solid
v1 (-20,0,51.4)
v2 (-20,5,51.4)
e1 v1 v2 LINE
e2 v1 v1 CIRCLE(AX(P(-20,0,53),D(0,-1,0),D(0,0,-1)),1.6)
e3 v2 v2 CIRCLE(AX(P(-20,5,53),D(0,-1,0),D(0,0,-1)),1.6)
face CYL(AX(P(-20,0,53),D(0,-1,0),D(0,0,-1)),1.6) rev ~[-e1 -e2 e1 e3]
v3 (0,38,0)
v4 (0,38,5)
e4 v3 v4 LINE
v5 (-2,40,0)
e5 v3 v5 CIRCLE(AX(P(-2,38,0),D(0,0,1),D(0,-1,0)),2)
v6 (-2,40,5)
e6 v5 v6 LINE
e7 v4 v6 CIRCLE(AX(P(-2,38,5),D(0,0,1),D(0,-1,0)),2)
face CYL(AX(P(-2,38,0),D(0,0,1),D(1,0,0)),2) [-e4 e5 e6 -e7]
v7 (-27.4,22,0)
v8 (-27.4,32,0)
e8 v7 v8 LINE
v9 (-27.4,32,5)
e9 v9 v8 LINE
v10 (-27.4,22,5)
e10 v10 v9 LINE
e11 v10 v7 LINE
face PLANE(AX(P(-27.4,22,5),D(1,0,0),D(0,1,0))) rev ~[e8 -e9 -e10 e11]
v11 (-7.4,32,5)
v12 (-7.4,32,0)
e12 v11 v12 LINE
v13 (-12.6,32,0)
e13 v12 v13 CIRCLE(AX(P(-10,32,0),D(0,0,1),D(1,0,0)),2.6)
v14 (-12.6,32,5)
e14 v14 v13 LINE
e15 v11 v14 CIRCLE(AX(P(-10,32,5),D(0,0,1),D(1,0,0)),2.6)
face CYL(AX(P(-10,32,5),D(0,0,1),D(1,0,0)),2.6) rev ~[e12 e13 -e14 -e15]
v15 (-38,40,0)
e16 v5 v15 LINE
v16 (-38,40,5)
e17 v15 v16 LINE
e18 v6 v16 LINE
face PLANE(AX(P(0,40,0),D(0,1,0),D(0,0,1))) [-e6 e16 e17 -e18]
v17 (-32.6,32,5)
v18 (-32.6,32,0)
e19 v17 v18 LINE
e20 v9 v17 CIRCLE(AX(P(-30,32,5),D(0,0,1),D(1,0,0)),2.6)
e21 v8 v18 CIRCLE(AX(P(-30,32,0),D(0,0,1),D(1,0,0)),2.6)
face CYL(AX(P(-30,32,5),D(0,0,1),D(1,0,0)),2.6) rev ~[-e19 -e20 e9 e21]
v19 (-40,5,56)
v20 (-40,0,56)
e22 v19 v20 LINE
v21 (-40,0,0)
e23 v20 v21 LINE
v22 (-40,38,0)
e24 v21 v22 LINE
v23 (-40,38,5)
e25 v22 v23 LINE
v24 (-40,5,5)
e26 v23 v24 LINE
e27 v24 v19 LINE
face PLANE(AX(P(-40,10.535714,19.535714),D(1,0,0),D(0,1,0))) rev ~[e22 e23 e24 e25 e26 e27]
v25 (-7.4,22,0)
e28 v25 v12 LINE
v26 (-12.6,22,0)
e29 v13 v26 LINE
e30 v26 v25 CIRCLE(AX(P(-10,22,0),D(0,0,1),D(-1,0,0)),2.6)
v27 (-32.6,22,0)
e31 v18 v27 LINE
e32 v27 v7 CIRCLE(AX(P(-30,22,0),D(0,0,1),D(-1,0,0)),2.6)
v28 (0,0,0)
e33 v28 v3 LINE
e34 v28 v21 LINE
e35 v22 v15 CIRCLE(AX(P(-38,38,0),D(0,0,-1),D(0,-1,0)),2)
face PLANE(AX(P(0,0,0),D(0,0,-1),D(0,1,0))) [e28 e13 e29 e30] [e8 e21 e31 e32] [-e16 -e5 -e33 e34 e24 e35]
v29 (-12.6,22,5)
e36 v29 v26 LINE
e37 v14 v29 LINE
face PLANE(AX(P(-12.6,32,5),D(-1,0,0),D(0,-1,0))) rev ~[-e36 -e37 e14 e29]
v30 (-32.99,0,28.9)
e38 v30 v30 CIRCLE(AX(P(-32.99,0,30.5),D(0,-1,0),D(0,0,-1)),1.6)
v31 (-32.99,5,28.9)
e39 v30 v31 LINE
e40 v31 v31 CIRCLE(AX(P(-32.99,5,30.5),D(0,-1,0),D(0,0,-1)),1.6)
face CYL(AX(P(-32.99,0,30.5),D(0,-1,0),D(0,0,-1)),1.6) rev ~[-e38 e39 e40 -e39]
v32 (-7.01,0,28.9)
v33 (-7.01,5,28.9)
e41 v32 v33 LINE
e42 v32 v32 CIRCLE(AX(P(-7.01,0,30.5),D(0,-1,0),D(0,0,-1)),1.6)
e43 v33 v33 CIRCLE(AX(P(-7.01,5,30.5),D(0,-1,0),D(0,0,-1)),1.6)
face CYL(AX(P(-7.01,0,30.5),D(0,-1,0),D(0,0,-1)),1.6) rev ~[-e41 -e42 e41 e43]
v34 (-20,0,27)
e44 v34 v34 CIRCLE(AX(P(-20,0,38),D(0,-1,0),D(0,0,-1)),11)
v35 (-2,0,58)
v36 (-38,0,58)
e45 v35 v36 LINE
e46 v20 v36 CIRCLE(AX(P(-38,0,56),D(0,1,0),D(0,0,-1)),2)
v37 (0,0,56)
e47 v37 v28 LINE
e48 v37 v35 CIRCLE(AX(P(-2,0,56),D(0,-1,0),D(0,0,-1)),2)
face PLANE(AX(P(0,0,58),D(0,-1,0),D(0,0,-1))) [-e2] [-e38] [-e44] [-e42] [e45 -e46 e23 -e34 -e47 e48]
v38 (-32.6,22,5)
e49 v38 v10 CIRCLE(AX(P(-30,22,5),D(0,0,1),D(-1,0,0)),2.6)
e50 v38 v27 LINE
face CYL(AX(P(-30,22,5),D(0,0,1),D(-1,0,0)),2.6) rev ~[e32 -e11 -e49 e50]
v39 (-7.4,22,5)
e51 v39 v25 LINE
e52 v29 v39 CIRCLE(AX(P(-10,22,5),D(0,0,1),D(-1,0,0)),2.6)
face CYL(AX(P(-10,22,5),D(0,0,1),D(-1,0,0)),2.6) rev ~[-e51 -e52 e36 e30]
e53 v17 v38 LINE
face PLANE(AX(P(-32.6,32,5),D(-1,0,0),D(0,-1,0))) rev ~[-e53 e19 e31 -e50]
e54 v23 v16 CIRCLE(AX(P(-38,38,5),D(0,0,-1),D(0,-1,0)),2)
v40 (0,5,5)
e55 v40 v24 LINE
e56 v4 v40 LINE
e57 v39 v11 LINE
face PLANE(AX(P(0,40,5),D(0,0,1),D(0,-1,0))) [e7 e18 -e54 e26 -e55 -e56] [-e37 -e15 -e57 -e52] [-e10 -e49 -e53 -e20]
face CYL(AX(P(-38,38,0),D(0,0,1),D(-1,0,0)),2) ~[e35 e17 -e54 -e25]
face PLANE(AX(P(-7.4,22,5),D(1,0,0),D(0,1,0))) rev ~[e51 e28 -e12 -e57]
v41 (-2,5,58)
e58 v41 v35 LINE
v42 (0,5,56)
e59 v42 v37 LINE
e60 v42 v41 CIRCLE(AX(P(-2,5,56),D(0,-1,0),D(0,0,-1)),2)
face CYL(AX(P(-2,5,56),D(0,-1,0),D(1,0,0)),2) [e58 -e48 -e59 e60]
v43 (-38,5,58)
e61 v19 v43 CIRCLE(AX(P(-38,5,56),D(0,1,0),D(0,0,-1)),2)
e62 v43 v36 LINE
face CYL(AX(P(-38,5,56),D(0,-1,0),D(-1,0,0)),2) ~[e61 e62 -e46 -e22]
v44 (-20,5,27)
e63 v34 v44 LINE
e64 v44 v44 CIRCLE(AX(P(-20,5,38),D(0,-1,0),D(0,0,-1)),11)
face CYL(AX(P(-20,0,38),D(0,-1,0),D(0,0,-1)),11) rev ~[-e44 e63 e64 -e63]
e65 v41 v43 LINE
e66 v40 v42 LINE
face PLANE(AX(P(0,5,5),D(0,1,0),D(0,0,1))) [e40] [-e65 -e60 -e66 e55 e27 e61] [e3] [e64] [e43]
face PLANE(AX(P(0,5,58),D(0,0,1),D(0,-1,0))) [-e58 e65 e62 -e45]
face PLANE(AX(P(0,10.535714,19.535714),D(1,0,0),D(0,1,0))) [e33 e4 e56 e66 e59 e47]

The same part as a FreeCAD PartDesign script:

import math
import FreeCAD as App
import Part
import Sketcher
from FreeCAD import Vector


def edges_at(feature, points):
    """Names of the edges that pass closest to the given points."""
    edges = feature.Shape.Edges
    near = lambda p: min(range(len(edges)), key=lambda i: edges[i].distToShape(Part.Vertex(*p))[0])
    return sorted({f"Edge{near(p) + 1}" for p in points})

doc = App.newDocument("Part")
params = doc.addObject("Spreadsheet::Sheet", "Params")
for row, (alias, value) in enumerate([
    ("sketch1_width", "5 mm"),
    ("sketch1_width2", "40 mm"),
    ("sketch1_height", "53 mm"),
    ("pad1_length", "40 mm"),
    ("sketch2_diameter", "22 mm"),
    ("pocket1_length", "5 mm"),
    ("sketch3_diameter", "3.2 mm"),
    ("fillet_radius", "2 mm"),
    ("sketch4_radius", "2.6 mm"),
    ("sketch4_height", "10 mm"),
    ("pocket3_length", "5 mm"),
    ("fillet2_radius", "2 mm"),
], start=1):
    params.set(f"A{row}", alias)
    params.set(f"B{row}", "=" + value)
    params.setAlias(f"B{row}", alias)

body = doc.addObject("PartDesign::Body", "Body")

# Sketch on YZ plane
sketch1 = body.newObject("Sketcher::SketchObject", "Sketch")
sketch1.AttachmentSupport = (doc.getObject("YZ_Plane"), [""])
sketch1.MapMode = "FlatFace"
sketch1.addGeometry(Part.LineSegment(Vector(5, 5, 0), Vector(5, 58, 0)), False)
sketch1.addGeometry(Part.LineSegment(Vector(5, 58, 0), Vector(0, 58, 0)), False)
sketch1.addGeometry(Part.LineSegment(Vector(0, 58, 0), Vector(0, 0, 0)), False)
sketch1.addGeometry(Part.LineSegment(Vector(0, 0, 0), Vector(40, 0, 0)), False)
sketch1.addGeometry(Part.LineSegment(Vector(40, 0, 0), Vector(40, 5, 0)), False)
sketch1.addGeometry(Part.LineSegment(Vector(40, 5, 0), Vector(5, 5, 0)), False)
sketch1.addConstraint(Sketcher.Constraint("Coincident", 0, 2, 1, 1))
sketch1.addConstraint(Sketcher.Constraint("Coincident", 1, 2, 2, 1))
sketch1.addConstraint(Sketcher.Constraint("Coincident", 2, 2, 3, 1))
sketch1.addConstraint(Sketcher.Constraint("Coincident", 3, 2, 4, 1))
sketch1.addConstraint(Sketcher.Constraint("Coincident", 4, 2, 5, 1))
sketch1.addConstraint(Sketcher.Constraint("Coincident", 5, 2, 0, 1))
sketch1.addConstraint(Sketcher.Constraint("Vertical", 0))
sketch1.addConstraint(Sketcher.Constraint("Horizontal", 1))
sketch1.addConstraint(Sketcher.Constraint("Vertical", 2))
sketch1.addConstraint(Sketcher.Constraint("Horizontal", 3))
sketch1.addConstraint(Sketcher.Constraint("Vertical", 4))
sketch1.addConstraint(Sketcher.Constraint("Horizontal", 5))
sketch1.addConstraint(Sketcher.Constraint("Coincident", 2, 2, -1, 1))
sketch1.addConstraint(Sketcher.Constraint("Equal", 1, 4))
sketch1.addConstraint(Sketcher.Constraint("DistanceX", 1, 2, 1, 1, 5.0))
sketch1.addConstraint(Sketcher.Constraint("DistanceX", 3, 1, 3, 2, 40.0))
sketch1.addConstraint(Sketcher.Constraint("DistanceY", 0, 1, 0, 2, 53.0))
sketch1.setExpression("Constraints[14]", "Params.sketch1_width")
sketch1.setExpression("Constraints[15]", "Params.sketch1_width2")
sketch1.setExpression("Constraints[16]", "Params.sketch1_height")
pad1 = body.newObject("PartDesign::Pad", "Pad")
pad1.Profile = sketch1
pad1.setExpression("Length", "Params.pad1_length")
pad1.Reversed = True

# Sketch on XZ plane
sketch2 = body.newObject("Sketcher::SketchObject", "Sketch001")
sketch2.AttachmentSupport = (doc.getObject("XZ_Plane"), [""])
sketch2.MapMode = "FlatFace"
sketch2.addGeometry(Part.Circle(Vector(-20, 38, 0), Vector(0, 0, 1), 11), False)
sketch2.addConstraint(Sketcher.Constraint("Diameter", 0, 22.0))
sketch2.addConstraint(Sketcher.Constraint("DistanceX", 0, 3, -1, 1, 20.0))
sketch2.addConstraint(Sketcher.Constraint("DistanceY", -1, 1, 0, 3, 38.0))
sketch2.setExpression("Constraints[0]", "Params.sketch2_diameter")
pocket1 = body.newObject("PartDesign::Pocket", "Pocket")
pocket1.Profile = sketch2
pocket1.setExpression("Length", "Params.pocket1_length")

# Sketch on XZ plane
sketch3 = body.newObject("Sketcher::SketchObject", "Sketch002")
sketch3.AttachmentSupport = (doc.getObject("XZ_Plane"), [""])
sketch3.MapMode = "FlatFace"
sketch3.addGeometry(Part.Circle(Vector(-20, 53, 0), Vector(0, 0, 1), 1.6), False)
sketch3.addGeometry(Part.Circle(Vector(-32.99, 30.5, 0), Vector(0, 0, 1), 1.6), False)
sketch3.addGeometry(Part.Circle(Vector(-7.01, 30.5, 0), Vector(0, 0, 1), 1.6), False)
sketch3.addConstraint(Sketcher.Constraint("Equal", 0, 1))
sketch3.addConstraint(Sketcher.Constraint("Equal", 1, 2))
sketch3.addConstraint(Sketcher.Constraint("Horizontal", 1, 3, 2, 3))
sketch3.addConstraint(Sketcher.Constraint("Diameter", 0, 3.2))
sketch3.addConstraint(Sketcher.Constraint("DistanceX", 0, 3, -1, 1, 20.0))
sketch3.addConstraint(Sketcher.Constraint("DistanceY", -1, 1, 0, 3, 53.0))
sketch3.addConstraint(Sketcher.Constraint("DistanceY", -1, 1, 1, 3, 30.5))
sketch3.addConstraint(Sketcher.Constraint("DistanceX", 1, 3, -1, 1, 32.99))
sketch3.addConstraint(Sketcher.Constraint("DistanceX", 2, 3, -1, 1, 7.01))
sketch3.setExpression("Constraints[3]", "Params.sketch3_diameter")
pocket2 = body.newObject("PartDesign::Pocket", "Pocket001")
pocket2.Profile = sketch3
pocket2.Type = "ThroughAll"
doc.recompute()

fillet = body.newObject("PartDesign::Fillet", "Fillet")
fillet.Base = (pocket2, edges_at(pocket2, [(0, 2.5, 58), (-40, 2.5, 58)]))
fillet.setExpression("Radius", "Params.fillet_radius")

# Sketch on XY plane
sketch4 = body.newObject("Sketcher::SketchObject", "Sketch003")
sketch4.AttachmentSupport = (doc.getObject("XY_Plane"), [""])
sketch4.MapMode = "FlatFace"
sketch4.AttachmentOffset = App.Placement(Vector(0, 0, 5), App.Rotation())
sketch4.addGeometry(Part.ArcOfCircle(Part.Circle(Vector(-10, 32, 0), Vector(0, 0, 1), 2.6), math.radians(0), math.radians(180)), False)
sketch4.addGeometry(Part.LineSegment(Vector(-12.6, 32, 0), Vector(-12.6, 22, 0)), False)
sketch4.addGeometry(Part.ArcOfCircle(Part.Circle(Vector(-10, 22, 0), Vector(0, 0, 1), 2.6), math.radians(180), math.radians(360)), False)
sketch4.addGeometry(Part.LineSegment(Vector(-7.4, 22, 0), Vector(-7.4, 32, 0)), False)
sketch4.addGeometry(Part.ArcOfCircle(Part.Circle(Vector(-30, 32, 0), Vector(0, 0, 1), 2.6), math.radians(0), math.radians(180)), False)
sketch4.addGeometry(Part.LineSegment(Vector(-32.6, 32, 0), Vector(-32.6, 22, 0)), False)
sketch4.addGeometry(Part.ArcOfCircle(Part.Circle(Vector(-30, 22, 0), Vector(0, 0, 1), 2.6), math.radians(180), math.radians(360)), False)
sketch4.addGeometry(Part.LineSegment(Vector(-27.4, 22, 0), Vector(-27.4, 32, 0)), False)
sketch4.addConstraint(Sketcher.Constraint("Tangent", 0, 2, 1, 1))
sketch4.addConstraint(Sketcher.Constraint("Tangent", 1, 2, 2, 1))
sketch4.addConstraint(Sketcher.Constraint("Tangent", 2, 2, 3, 1))
sketch4.addConstraint(Sketcher.Constraint("Tangent", 3, 2, 0, 1))
sketch4.addConstraint(Sketcher.Constraint("Tangent", 4, 2, 5, 1))
sketch4.addConstraint(Sketcher.Constraint("Tangent", 5, 2, 6, 1))
sketch4.addConstraint(Sketcher.Constraint("Tangent", 6, 2, 7, 1))
sketch4.addConstraint(Sketcher.Constraint("Tangent", 7, 2, 4, 1))
sketch4.addConstraint(Sketcher.Constraint("Vertical", 1))
sketch4.addConstraint(Sketcher.Constraint("Vertical", 3))
sketch4.addConstraint(Sketcher.Constraint("Vertical", 5))
sketch4.addConstraint(Sketcher.Constraint("Vertical", 7))
sketch4.addConstraint(Sketcher.Constraint("Equal", 2, 4))
sketch4.addConstraint(Sketcher.Constraint("Horizontal", 0, 3, 4, 3))
sketch4.addConstraint(Sketcher.Constraint("Horizontal", 2, 3, 6, 3))
sketch4.addConstraint(Sketcher.Constraint("Radius", 0, 2.6))
sketch4.addConstraint(Sketcher.Constraint("DistanceY", 1, 2, 1, 1, 10.0))
sketch4.addConstraint(Sketcher.Constraint("DistanceX", 0, 3, -1, 1, 10.0))
sketch4.addConstraint(Sketcher.Constraint("DistanceY", -1, 1, 0, 3, 32.0))
sketch4.addConstraint(Sketcher.Constraint("DistanceX", 4, 3, -1, 1, 30.0))
sketch4.setExpression("Constraints[15]", "Params.sketch4_radius")
sketch4.setExpression("Constraints[16]", "Params.sketch4_height")
pocket3 = body.newObject("PartDesign::Pocket", "Pocket002")
pocket3.Profile = sketch4
pocket3.setExpression("Length", "Params.pocket3_length")
doc.recompute()

fillet2 = body.newObject("PartDesign::Fillet", "Fillet001")
fillet2.Base = (pocket3, edges_at(pocket3, [(0, 40, 2.5), (-40, 40, 2.5)]))
fillet2.setExpression("Radius", "Params.fillet2_radius")

doc.recompute()
